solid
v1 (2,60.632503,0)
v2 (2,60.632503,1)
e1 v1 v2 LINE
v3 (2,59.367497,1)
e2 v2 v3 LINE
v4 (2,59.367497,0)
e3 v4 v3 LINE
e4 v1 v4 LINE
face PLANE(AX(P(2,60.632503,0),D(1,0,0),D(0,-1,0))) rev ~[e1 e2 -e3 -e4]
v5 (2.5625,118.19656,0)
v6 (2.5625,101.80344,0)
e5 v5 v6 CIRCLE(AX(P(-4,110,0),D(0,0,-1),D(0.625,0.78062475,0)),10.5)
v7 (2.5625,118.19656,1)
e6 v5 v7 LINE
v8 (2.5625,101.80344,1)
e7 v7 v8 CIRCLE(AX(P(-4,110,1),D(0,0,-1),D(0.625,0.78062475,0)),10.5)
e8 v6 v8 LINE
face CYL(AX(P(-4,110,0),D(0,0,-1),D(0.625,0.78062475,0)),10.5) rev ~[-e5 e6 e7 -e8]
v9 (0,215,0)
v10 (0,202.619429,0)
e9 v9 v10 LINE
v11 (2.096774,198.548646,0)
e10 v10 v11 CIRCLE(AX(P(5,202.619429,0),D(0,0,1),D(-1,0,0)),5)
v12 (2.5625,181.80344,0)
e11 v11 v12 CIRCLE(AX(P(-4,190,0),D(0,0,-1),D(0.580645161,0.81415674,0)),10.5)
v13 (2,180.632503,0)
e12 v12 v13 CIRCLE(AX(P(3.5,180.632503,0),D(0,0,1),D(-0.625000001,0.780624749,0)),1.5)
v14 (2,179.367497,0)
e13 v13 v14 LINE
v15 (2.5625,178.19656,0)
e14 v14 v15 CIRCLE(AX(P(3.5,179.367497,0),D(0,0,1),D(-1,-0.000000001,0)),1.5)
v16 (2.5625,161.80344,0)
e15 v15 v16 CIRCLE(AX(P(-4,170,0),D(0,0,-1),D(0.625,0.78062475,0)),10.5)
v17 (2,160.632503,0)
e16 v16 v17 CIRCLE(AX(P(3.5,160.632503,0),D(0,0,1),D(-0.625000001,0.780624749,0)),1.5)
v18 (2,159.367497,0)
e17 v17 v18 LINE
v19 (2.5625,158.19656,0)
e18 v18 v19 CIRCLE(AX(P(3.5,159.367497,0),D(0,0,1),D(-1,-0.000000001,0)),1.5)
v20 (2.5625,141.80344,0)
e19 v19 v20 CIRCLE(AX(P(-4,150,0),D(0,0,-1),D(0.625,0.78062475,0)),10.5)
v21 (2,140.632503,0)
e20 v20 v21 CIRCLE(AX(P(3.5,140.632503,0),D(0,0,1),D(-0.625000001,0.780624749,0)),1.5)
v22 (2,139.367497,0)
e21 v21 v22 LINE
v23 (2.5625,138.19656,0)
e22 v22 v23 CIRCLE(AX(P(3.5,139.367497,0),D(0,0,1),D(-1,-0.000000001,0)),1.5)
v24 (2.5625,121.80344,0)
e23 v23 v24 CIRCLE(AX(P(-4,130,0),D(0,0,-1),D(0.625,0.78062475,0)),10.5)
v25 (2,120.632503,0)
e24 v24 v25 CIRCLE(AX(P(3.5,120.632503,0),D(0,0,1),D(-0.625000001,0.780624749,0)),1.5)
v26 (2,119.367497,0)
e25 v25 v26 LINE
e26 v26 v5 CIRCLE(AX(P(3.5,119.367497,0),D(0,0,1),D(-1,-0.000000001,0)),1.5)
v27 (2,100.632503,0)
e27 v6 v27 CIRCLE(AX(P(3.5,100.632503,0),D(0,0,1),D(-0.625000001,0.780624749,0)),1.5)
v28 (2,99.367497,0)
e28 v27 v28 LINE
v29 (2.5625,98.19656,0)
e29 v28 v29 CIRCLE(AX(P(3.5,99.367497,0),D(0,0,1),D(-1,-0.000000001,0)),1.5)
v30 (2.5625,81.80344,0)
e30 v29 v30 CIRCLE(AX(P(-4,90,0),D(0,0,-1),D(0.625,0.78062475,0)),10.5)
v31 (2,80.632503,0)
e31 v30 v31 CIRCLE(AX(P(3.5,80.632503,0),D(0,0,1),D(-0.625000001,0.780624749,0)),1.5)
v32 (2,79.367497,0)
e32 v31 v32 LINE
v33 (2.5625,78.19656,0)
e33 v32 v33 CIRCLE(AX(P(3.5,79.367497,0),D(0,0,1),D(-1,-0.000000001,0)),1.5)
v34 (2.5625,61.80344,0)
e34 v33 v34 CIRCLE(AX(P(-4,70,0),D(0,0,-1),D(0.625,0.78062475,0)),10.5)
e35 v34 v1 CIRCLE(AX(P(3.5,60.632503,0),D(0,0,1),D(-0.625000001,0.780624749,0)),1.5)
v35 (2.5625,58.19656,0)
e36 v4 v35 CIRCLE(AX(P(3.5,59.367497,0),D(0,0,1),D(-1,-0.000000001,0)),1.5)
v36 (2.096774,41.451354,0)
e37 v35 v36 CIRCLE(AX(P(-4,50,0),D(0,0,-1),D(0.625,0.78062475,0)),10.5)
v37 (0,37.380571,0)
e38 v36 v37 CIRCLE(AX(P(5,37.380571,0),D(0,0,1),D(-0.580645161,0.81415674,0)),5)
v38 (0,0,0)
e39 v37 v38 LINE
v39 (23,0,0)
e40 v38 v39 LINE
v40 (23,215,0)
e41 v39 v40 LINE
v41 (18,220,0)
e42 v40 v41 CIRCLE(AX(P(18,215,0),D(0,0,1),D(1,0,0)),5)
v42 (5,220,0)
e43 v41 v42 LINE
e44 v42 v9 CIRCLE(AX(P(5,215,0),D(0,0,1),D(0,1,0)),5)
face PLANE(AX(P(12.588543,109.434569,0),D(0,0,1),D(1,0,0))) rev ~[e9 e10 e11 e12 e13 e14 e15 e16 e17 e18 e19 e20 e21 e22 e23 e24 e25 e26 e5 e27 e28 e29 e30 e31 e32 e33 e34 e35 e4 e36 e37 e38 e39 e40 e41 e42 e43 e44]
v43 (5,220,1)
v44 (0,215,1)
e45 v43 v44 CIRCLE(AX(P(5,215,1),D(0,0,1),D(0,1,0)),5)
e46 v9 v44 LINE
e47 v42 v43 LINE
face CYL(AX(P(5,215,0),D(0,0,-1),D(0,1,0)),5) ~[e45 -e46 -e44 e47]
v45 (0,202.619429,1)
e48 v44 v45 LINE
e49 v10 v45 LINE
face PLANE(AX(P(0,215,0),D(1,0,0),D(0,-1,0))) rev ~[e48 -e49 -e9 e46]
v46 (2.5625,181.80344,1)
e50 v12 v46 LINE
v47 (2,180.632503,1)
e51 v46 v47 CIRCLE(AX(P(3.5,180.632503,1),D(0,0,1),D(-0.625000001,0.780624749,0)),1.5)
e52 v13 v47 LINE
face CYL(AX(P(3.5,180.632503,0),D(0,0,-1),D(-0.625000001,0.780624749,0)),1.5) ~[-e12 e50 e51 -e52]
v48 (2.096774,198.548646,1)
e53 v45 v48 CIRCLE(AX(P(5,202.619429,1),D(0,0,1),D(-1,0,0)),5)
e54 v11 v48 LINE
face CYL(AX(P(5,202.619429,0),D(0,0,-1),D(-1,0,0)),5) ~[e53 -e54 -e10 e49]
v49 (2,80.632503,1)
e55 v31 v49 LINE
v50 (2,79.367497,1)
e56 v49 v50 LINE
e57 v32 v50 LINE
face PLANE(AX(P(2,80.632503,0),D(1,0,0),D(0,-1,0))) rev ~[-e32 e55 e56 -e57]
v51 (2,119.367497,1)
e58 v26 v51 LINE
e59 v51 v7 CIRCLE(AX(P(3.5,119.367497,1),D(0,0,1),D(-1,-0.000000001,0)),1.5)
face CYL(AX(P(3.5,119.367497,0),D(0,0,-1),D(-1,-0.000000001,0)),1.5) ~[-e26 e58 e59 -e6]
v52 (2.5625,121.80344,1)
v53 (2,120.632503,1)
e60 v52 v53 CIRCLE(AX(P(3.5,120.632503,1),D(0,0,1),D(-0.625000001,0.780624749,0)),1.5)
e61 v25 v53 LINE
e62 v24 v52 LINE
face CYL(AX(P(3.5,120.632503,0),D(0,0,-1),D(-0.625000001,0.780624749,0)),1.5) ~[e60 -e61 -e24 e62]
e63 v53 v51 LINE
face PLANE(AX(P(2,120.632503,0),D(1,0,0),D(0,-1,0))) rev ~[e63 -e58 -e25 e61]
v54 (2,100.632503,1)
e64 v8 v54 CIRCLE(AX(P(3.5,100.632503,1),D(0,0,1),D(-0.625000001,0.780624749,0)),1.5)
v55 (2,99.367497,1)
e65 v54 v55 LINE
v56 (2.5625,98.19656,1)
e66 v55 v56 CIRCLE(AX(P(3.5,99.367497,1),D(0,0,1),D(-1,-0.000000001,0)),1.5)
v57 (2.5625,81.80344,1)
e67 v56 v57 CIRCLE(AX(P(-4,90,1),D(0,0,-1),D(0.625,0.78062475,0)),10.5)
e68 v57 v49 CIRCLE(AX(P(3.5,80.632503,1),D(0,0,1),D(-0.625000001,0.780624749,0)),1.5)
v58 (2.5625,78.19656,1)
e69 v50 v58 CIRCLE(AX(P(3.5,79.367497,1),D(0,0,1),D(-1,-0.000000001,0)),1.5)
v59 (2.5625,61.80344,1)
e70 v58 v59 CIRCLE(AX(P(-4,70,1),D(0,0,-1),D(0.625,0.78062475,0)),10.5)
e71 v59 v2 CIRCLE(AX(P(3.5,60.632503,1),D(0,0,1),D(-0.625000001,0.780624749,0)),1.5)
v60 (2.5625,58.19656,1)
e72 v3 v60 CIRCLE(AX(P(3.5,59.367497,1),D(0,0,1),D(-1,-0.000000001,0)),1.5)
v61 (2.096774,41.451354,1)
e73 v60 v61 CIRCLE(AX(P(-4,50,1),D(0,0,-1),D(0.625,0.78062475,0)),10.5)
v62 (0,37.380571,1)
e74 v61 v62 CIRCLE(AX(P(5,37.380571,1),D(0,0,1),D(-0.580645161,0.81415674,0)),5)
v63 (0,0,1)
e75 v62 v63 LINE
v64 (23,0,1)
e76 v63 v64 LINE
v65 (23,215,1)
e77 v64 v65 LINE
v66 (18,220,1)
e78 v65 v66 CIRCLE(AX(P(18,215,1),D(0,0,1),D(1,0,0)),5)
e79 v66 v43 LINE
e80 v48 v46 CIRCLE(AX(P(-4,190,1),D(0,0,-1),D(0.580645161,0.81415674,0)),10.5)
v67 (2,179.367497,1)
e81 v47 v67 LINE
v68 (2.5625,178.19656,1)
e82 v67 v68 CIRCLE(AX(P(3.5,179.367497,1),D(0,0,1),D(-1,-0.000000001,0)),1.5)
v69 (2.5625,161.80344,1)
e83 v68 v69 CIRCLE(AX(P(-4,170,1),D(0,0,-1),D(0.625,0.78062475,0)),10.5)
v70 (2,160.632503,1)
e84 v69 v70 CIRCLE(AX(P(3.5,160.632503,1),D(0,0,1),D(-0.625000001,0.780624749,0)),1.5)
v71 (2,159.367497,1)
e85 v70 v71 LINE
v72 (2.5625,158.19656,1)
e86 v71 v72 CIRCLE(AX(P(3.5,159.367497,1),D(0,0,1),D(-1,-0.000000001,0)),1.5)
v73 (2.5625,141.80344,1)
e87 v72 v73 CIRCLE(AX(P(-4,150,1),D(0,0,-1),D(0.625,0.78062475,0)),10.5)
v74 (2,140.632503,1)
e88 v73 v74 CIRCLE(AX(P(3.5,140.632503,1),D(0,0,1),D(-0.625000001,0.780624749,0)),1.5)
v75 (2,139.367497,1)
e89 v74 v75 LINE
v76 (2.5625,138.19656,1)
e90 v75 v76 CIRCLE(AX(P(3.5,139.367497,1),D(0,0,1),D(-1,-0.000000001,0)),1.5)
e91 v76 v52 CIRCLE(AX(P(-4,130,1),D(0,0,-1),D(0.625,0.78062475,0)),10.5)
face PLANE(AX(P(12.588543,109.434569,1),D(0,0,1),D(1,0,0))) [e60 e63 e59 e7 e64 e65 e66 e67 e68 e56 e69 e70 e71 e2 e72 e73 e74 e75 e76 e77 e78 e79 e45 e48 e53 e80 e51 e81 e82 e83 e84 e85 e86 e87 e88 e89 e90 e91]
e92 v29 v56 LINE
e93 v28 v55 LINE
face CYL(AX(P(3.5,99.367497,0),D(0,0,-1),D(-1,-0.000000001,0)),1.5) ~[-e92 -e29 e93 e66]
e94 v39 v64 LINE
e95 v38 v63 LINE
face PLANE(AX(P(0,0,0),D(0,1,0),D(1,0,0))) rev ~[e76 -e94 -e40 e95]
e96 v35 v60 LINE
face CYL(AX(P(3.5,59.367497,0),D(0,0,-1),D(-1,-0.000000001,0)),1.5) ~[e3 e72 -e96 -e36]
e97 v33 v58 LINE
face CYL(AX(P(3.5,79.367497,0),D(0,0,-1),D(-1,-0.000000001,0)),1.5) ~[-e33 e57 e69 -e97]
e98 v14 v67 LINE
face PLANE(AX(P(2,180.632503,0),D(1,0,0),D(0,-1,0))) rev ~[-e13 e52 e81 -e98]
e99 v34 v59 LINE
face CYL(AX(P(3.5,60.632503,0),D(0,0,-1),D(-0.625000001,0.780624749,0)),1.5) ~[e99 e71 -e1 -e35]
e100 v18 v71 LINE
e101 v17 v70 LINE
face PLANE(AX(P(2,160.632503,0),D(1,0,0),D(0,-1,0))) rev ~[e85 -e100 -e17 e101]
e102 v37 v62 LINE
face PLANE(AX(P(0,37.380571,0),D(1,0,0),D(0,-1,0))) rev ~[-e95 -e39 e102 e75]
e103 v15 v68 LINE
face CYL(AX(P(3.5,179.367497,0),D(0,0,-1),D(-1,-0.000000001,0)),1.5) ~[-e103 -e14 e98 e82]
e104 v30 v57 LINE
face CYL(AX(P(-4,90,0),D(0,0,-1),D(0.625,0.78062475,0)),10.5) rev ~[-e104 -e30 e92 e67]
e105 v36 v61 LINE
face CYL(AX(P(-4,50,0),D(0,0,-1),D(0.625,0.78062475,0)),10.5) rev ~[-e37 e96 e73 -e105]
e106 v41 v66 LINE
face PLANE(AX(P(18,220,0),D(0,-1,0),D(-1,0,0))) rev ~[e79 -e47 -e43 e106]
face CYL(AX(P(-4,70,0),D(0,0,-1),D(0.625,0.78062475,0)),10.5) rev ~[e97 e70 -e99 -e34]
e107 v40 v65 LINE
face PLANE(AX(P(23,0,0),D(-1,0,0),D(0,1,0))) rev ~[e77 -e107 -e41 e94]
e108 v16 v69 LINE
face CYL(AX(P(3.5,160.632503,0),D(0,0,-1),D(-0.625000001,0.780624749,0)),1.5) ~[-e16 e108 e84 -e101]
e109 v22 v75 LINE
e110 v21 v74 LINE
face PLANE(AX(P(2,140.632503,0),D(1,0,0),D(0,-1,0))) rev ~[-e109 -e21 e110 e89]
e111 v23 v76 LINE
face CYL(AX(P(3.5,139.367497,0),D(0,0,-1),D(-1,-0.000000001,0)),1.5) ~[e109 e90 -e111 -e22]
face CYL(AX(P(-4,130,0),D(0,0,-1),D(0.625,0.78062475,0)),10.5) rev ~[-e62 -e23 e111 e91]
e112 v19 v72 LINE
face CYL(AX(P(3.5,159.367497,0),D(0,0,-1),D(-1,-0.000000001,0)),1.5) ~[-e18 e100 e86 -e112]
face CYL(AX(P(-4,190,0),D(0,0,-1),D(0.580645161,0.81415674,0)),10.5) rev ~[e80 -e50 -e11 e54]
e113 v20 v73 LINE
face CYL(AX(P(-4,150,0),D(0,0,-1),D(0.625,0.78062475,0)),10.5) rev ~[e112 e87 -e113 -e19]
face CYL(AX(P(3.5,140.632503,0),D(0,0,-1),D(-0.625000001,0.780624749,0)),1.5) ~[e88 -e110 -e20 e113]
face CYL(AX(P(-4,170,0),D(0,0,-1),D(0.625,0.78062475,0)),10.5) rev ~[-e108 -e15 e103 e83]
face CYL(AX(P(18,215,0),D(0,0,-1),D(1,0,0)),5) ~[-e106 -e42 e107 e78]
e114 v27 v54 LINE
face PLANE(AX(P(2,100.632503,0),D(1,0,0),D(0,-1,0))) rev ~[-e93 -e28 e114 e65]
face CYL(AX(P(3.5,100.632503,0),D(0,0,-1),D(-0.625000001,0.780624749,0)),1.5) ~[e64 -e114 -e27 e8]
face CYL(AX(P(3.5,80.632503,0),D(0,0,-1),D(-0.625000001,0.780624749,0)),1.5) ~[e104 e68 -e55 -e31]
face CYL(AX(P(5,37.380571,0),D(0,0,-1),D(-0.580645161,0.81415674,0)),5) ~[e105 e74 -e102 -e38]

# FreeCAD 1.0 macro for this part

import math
import FreeCAD as App
import Part
import Sketcher

V = App.Vector
Q = App.Units.Quantity

doc = App.newDocument("Part")
body = doc.addObject("PartDesign::Body", "Body")

# Sketch on XY plane
sketch1 = body.newObject("Sketcher::SketchObject", "Sketch")
sketch1.AttachmentSupport = (doc.getObject("XY_Plane"), [""])
sketch1.MapMode = "FlatFace"
sketch1.addGeometry([
    Part.LineSegment(V(0, 0, 0), V(23, 0, 0)),  # 0
    Part.LineSegment(V(23, 0, 0), V(23, 215, 0)),  # 1
    Part.ArcOfCircle(Part.Circle(V(18, 215, 0), V(0, 0, 1), 5), math.radians(0), math.radians(90)),  # 2
    Part.LineSegment(V(18, 220, 0), V(5, 220, 0)),  # 3
    Part.ArcOfCircle(Part.Circle(V(5, 215, 0), V(0, 0, 1), 5), math.radians(90), math.radians(180)),  # 4
    Part.LineSegment(V(0, 215, 0), V(0, 202.619429, 0)),  # 5
    Part.ArcOfCircle(Part.Circle(V(5, 202.619429, 0), V(0, 0, 1), 5), math.radians(180), math.radians(234.504067)),  # 6
    Part.ArcOfCircle(Part.Circle(V(-4, 190, 0), V(0, 0, 1), 10.5), math.radians(-51.317813), math.radians(54.504067)),  # 7
    Part.ArcOfCircle(Part.Circle(V(3.5, 180.632503, 0), V(0, 0, 1), 1.5), math.radians(128.682188), math.radians(180)),  # 8
    Part.LineSegment(V(2, 180.632503, 0), V(2, 179.367497, 0)),  # 9
    Part.ArcOfCircle(Part.Circle(V(3.5, 179.367497, 0), V(0, 0, 1), 1.5), math.radians(-180), math.radians(-128.682188)),  # 10
    Part.ArcOfCircle(Part.Circle(V(-4, 170, 0), V(0, 0, 1), 10.5), math.radians(-51.317813), math.radians(51.317813)),  # 11
    Part.ArcOfCircle(Part.Circle(V(3.5, 160.632503, 0), V(0, 0, 1), 1.5), math.radians(128.682188), math.radians(180)),  # 12
    Part.LineSegment(V(2, 160.632503, 0), V(2, 159.367497, 0)),  # 13
    Part.ArcOfCircle(Part.Circle(V(3.5, 159.367497, 0), V(0, 0, 1), 1.5), math.radians(-180), math.radians(-128.682188)),  # 14
    Part.ArcOfCircle(Part.Circle(V(-4, 150, 0), V(0, 0, 1), 10.5), math.radians(-51.317813), math.radians(51.317813)),  # 15
    Part.ArcOfCircle(Part.Circle(V(3.5, 140.632503, 0), V(0, 0, 1), 1.5), math.radians(128.682188), math.radians(180)),  # 16
    Part.LineSegment(V(2, 140.632503, 0), V(2, 139.367497, 0)),  # 17
    Part.ArcOfCircle(Part.Circle(V(3.5, 139.367497, 0), V(0, 0, 1), 1.5), math.radians(-180), math.radians(-128.682188)),  # 18
    Part.ArcOfCircle(Part.Circle(V(-4, 130, 0), V(0, 0, 1), 10.5), math.radians(-51.317813), math.radians(51.317813)),  # 19
    Part.ArcOfCircle(Part.Circle(V(3.5, 120.632503, 0), V(0, 0, 1), 1.5), math.radians(128.682188), math.radians(180)),  # 20
    Part.LineSegment(V(2, 120.632503, 0), V(2, 119.367497, 0)),  # 21
    Part.ArcOfCircle(Part.Circle(V(3.5, 119.367497, 0), V(0, 0, 1), 1.5), math.radians(-180), math.radians(-128.682188)),  # 22
    Part.ArcOfCircle(Part.Circle(V(-4, 110, 0), V(0, 0, 1), 10.5), math.radians(-51.317813), math.radians(51.317813)),  # 23
    Part.ArcOfCircle(Part.Circle(V(3.5, 100.632503, 0), V(0, 0, 1), 1.5), math.radians(128.682188), math.radians(180)),  # 24
    Part.LineSegment(V(2, 100.632503, 0), V(2, 99.367497, 0)),  # 25
    Part.ArcOfCircle(Part.Circle(V(3.5, 99.367497, 0), V(0, 0, 1), 1.5), math.radians(-180), math.radians(-128.682188)),  # 26
    Part.ArcOfCircle(Part.Circle(V(-4, 90, 0), V(0, 0, 1), 10.5), math.radians(-51.317813), math.radians(51.317813)),  # 27
    Part.ArcOfCircle(Part.Circle(V(3.5, 80.632503, 0), V(0, 0, 1), 1.5), math.radians(128.682188), math.radians(180)),  # 28
    Part.LineSegment(V(2, 80.632503, 0), V(2, 79.367497, 0)),  # 29
    Part.ArcOfCircle(Part.Circle(V(3.5, 79.367497, 0), V(0, 0, 1), 1.5), math.radians(-180), math.radians(-128.682188)),  # 30
    Part.ArcOfCircle(Part.Circle(V(-4, 70, 0), V(0, 0, 1), 10.5), math.radians(-51.317813), math.radians(51.317813)),  # 31
    Part.ArcOfCircle(Part.Circle(V(3.5, 60.632503, 0), V(0, 0, 1), 1.5), math.radians(128.682188), math.radians(180)),  # 32
    Part.LineSegment(V(2, 60.632503, 0), V(2, 59.367497, 0)),  # 33
    Part.ArcOfCircle(Part.Circle(V(3.5, 59.367497, 0), V(0, 0, 1), 1.5), math.radians(-180), math.radians(-128.682188)),  # 34
    Part.ArcOfCircle(Part.Circle(V(-4, 50, 0), V(0, 0, 1), 10.5), math.radians(-54.504067), math.radians(51.317813)),  # 35
    Part.ArcOfCircle(Part.Circle(V(5, 37.380571, 0), V(0, 0, 1), 5), math.radians(125.495933), math.radians(180)),  # 36
    Part.LineSegment(V(0, 37.380571, 0), V(0, 0, 0)),  # 37
], False)
sketch1.addConstraint([
    Sketcher.Constraint("Coincident", 0, 2, 1, 1),
    Sketcher.Constraint("Tangent", 1, 2, 2, 1),
    Sketcher.Constraint("Tangent", 2, 2, 3, 1),
    Sketcher.Constraint("Tangent", 3, 2, 4, 1),
    Sketcher.Constraint("Tangent", 4, 2, 5, 1),
    Sketcher.Constraint("Tangent", 5, 2, 6, 1),
    Sketcher.Constraint("Tangent", 6, 2, 7, 2),
    Sketcher.Constraint("Tangent", 7, 1, 8, 1),
    Sketcher.Constraint("Tangent", 8, 2, 9, 1),
    Sketcher.Constraint("Tangent", 9, 2, 10, 1),
    Sketcher.Constraint("Tangent", 10, 2, 11, 2),
    Sketcher.Constraint("Tangent", 11, 1, 12, 1),
    Sketcher.Constraint("Tangent", 12, 2, 13, 1),
    Sketcher.Constraint("Tangent", 13, 2, 14, 1),
    Sketcher.Constraint("Tangent", 14, 2, 15, 2),
    Sketcher.Constraint("Tangent", 15, 1, 16, 1),
    Sketcher.Constraint("Tangent", 16, 2, 17, 1),
    Sketcher.Constraint("Tangent", 17, 2, 18, 1),
    Sketcher.Constraint("Tangent", 18, 2, 19, 2),
    Sketcher.Constraint("Tangent", 19, 1, 20, 1),
    Sketcher.Constraint("Tangent", 20, 2, 21, 1),
    Sketcher.Constraint("Tangent", 21, 2, 22, 1),
    Sketcher.Constraint("Tangent", 22, 2, 23, 2),
    Sketcher.Constraint("Tangent", 23, 1, 24, 1),
    Sketcher.Constraint("Tangent", 24, 2, 25, 1),
    Sketcher.Constraint("Tangent", 25, 2, 26, 1),
    Sketcher.Constraint("Tangent", 26, 2, 27, 2),
    Sketcher.Constraint("Tangent", 27, 1, 28, 1),
    Sketcher.Constraint("Tangent", 28, 2, 29, 1),
    Sketcher.Constraint("Tangent", 29, 2, 30, 1),
    Sketcher.Constraint("Tangent", 30, 2, 31, 2),
    Sketcher.Constraint("Tangent", 31, 1, 32, 1),
    Sketcher.Constraint("Tangent", 32, 2, 33, 1),
    Sketcher.Constraint("Tangent", 33, 2, 34, 1),
    Sketcher.Constraint("Tangent", 34, 2, 35, 2),
    Sketcher.Constraint("Tangent", 35, 1, 36, 1),
    Sketcher.Constraint("Tangent", 36, 2, 37, 1),
    Sketcher.Constraint("Coincident", 37, 2, 0, 1),
    Sketcher.Constraint("Horizontal", 0),
    Sketcher.Constraint("Vertical", 1),
    Sketcher.Constraint("Horizontal", 3),
    Sketcher.Constraint("Vertical", 5),
    Sketcher.Constraint("Vertical", 9),
    Sketcher.Constraint("Vertical", 13),
    Sketcher.Constraint("Vertical", 17),
    Sketcher.Constraint("Vertical", 21),
    Sketcher.Constraint("Vertical", 25),
    Sketcher.Constraint("Vertical", 29),
    Sketcher.Constraint("Vertical", 33),
    Sketcher.Constraint("Vertical", 37),
    Sketcher.Constraint("Coincident", 37, 2, -1, 1),
    Sketcher.Constraint("Equal", 2, 4),
    Sketcher.Constraint("Equal", 4, 6),
    Sketcher.Constraint("Equal", 8, 10),
    Sketcher.Constraint("Equal", 7, 11),
    Sketcher.Constraint("Equal", 10, 12),
    Sketcher.Constraint("Equal", 12, 14),
    Sketcher.Constraint("Equal", 11, 15),
    Sketcher.Constraint("Equal", 14, 16),
    Sketcher.Constraint("Equal", 16, 18),
    Sketcher.Constraint("Equal", 15, 19),
    Sketcher.Constraint("Equal", 18, 20),
    Sketcher.Constraint("Equal", 20, 22),
    Sketcher.Constraint("Equal", 19, 23),
    Sketcher.Constraint("Equal", 22, 24),
    Sketcher.Constraint("Equal", 24, 26),
    Sketcher.Constraint("Equal", 23, 27),
    Sketcher.Constraint("Equal", 26, 28),
    Sketcher.Constraint("Equal", 28, 30),
    Sketcher.Constraint("Equal", 27, 31),
    Sketcher.Constraint("Equal", 30, 32),
    Sketcher.Constraint("Equal", 32, 34),
    Sketcher.Constraint("Equal", 31, 35),
    Sketcher.Constraint("Equal", 6, 36),
    Sketcher.Constraint("PointOnObject", 4, 2, -2),
    Sketcher.Constraint("Vertical", 7, 3, 11, 3),
    Sketcher.Constraint("Vertical", 10, 3, 12, 3),
    Sketcher.Constraint("Vertical", 11, 3, 15, 3),
    Sketcher.Constraint("Vertical", 14, 3, 16, 3),
    Sketcher.Constraint("Vertical", 15, 3, 19, 3),
    Sketcher.Constraint("Vertical", 18, 3, 20, 3),
    Sketcher.Constraint("Vertical", 19, 3, 23, 3),
    Sketcher.Constraint("Vertical", 22, 3, 24, 3),
    Sketcher.Constraint("Vertical", 23, 3, 27, 3),
    Sketcher.Constraint("Vertical", 26, 3, 28, 3),
    Sketcher.Constraint("Vertical", 27, 3, 31, 3),
    Sketcher.Constraint("Vertical", 30, 3, 32, 3),
    Sketcher.Constraint("Vertical", 31, 3, 35, 3),
    Sketcher.Constraint("Equal", 9, 13),
    Sketcher.Constraint("Equal", 13, 17),
    Sketcher.Constraint("Equal", 17, 21),
    Sketcher.Constraint("Equal", 21, 25),
    Sketcher.Constraint("Equal", 25, 29),
    Sketcher.Constraint("Equal", 29, 33),
    Sketcher.Constraint("Radius", 2, Q("5 mm")),
    Sketcher.Constraint("Radius", 7, Q("10.5 mm")),
    Sketcher.Constraint("Radius", 8, Q("1.5 mm")),
    Sketcher.Constraint("DistanceX", 0, 1, 0, 2, Q("23 mm")),
    Sketcher.Constraint("DistanceY", 1, 1, 1, 2, Q("215 mm")),
    Sketcher.Constraint("DistanceX", 7, 3, -1, 1, Q("4 mm")),
    Sketcher.Constraint("DistanceY", -1, 1, 7, 3, Q("190 mm")),
    Sketcher.Constraint("DistanceY", -1, 1, 11, 3, Q("170 mm")),
    Sketcher.Constraint("DistanceX", -1, 1, 8, 2, Q("2 mm")),
])
pad1 = body.newObject("PartDesign::Pad", "Pad")
pad1.Profile = sketch1
pad1.Length = 1

doc.recompute()
